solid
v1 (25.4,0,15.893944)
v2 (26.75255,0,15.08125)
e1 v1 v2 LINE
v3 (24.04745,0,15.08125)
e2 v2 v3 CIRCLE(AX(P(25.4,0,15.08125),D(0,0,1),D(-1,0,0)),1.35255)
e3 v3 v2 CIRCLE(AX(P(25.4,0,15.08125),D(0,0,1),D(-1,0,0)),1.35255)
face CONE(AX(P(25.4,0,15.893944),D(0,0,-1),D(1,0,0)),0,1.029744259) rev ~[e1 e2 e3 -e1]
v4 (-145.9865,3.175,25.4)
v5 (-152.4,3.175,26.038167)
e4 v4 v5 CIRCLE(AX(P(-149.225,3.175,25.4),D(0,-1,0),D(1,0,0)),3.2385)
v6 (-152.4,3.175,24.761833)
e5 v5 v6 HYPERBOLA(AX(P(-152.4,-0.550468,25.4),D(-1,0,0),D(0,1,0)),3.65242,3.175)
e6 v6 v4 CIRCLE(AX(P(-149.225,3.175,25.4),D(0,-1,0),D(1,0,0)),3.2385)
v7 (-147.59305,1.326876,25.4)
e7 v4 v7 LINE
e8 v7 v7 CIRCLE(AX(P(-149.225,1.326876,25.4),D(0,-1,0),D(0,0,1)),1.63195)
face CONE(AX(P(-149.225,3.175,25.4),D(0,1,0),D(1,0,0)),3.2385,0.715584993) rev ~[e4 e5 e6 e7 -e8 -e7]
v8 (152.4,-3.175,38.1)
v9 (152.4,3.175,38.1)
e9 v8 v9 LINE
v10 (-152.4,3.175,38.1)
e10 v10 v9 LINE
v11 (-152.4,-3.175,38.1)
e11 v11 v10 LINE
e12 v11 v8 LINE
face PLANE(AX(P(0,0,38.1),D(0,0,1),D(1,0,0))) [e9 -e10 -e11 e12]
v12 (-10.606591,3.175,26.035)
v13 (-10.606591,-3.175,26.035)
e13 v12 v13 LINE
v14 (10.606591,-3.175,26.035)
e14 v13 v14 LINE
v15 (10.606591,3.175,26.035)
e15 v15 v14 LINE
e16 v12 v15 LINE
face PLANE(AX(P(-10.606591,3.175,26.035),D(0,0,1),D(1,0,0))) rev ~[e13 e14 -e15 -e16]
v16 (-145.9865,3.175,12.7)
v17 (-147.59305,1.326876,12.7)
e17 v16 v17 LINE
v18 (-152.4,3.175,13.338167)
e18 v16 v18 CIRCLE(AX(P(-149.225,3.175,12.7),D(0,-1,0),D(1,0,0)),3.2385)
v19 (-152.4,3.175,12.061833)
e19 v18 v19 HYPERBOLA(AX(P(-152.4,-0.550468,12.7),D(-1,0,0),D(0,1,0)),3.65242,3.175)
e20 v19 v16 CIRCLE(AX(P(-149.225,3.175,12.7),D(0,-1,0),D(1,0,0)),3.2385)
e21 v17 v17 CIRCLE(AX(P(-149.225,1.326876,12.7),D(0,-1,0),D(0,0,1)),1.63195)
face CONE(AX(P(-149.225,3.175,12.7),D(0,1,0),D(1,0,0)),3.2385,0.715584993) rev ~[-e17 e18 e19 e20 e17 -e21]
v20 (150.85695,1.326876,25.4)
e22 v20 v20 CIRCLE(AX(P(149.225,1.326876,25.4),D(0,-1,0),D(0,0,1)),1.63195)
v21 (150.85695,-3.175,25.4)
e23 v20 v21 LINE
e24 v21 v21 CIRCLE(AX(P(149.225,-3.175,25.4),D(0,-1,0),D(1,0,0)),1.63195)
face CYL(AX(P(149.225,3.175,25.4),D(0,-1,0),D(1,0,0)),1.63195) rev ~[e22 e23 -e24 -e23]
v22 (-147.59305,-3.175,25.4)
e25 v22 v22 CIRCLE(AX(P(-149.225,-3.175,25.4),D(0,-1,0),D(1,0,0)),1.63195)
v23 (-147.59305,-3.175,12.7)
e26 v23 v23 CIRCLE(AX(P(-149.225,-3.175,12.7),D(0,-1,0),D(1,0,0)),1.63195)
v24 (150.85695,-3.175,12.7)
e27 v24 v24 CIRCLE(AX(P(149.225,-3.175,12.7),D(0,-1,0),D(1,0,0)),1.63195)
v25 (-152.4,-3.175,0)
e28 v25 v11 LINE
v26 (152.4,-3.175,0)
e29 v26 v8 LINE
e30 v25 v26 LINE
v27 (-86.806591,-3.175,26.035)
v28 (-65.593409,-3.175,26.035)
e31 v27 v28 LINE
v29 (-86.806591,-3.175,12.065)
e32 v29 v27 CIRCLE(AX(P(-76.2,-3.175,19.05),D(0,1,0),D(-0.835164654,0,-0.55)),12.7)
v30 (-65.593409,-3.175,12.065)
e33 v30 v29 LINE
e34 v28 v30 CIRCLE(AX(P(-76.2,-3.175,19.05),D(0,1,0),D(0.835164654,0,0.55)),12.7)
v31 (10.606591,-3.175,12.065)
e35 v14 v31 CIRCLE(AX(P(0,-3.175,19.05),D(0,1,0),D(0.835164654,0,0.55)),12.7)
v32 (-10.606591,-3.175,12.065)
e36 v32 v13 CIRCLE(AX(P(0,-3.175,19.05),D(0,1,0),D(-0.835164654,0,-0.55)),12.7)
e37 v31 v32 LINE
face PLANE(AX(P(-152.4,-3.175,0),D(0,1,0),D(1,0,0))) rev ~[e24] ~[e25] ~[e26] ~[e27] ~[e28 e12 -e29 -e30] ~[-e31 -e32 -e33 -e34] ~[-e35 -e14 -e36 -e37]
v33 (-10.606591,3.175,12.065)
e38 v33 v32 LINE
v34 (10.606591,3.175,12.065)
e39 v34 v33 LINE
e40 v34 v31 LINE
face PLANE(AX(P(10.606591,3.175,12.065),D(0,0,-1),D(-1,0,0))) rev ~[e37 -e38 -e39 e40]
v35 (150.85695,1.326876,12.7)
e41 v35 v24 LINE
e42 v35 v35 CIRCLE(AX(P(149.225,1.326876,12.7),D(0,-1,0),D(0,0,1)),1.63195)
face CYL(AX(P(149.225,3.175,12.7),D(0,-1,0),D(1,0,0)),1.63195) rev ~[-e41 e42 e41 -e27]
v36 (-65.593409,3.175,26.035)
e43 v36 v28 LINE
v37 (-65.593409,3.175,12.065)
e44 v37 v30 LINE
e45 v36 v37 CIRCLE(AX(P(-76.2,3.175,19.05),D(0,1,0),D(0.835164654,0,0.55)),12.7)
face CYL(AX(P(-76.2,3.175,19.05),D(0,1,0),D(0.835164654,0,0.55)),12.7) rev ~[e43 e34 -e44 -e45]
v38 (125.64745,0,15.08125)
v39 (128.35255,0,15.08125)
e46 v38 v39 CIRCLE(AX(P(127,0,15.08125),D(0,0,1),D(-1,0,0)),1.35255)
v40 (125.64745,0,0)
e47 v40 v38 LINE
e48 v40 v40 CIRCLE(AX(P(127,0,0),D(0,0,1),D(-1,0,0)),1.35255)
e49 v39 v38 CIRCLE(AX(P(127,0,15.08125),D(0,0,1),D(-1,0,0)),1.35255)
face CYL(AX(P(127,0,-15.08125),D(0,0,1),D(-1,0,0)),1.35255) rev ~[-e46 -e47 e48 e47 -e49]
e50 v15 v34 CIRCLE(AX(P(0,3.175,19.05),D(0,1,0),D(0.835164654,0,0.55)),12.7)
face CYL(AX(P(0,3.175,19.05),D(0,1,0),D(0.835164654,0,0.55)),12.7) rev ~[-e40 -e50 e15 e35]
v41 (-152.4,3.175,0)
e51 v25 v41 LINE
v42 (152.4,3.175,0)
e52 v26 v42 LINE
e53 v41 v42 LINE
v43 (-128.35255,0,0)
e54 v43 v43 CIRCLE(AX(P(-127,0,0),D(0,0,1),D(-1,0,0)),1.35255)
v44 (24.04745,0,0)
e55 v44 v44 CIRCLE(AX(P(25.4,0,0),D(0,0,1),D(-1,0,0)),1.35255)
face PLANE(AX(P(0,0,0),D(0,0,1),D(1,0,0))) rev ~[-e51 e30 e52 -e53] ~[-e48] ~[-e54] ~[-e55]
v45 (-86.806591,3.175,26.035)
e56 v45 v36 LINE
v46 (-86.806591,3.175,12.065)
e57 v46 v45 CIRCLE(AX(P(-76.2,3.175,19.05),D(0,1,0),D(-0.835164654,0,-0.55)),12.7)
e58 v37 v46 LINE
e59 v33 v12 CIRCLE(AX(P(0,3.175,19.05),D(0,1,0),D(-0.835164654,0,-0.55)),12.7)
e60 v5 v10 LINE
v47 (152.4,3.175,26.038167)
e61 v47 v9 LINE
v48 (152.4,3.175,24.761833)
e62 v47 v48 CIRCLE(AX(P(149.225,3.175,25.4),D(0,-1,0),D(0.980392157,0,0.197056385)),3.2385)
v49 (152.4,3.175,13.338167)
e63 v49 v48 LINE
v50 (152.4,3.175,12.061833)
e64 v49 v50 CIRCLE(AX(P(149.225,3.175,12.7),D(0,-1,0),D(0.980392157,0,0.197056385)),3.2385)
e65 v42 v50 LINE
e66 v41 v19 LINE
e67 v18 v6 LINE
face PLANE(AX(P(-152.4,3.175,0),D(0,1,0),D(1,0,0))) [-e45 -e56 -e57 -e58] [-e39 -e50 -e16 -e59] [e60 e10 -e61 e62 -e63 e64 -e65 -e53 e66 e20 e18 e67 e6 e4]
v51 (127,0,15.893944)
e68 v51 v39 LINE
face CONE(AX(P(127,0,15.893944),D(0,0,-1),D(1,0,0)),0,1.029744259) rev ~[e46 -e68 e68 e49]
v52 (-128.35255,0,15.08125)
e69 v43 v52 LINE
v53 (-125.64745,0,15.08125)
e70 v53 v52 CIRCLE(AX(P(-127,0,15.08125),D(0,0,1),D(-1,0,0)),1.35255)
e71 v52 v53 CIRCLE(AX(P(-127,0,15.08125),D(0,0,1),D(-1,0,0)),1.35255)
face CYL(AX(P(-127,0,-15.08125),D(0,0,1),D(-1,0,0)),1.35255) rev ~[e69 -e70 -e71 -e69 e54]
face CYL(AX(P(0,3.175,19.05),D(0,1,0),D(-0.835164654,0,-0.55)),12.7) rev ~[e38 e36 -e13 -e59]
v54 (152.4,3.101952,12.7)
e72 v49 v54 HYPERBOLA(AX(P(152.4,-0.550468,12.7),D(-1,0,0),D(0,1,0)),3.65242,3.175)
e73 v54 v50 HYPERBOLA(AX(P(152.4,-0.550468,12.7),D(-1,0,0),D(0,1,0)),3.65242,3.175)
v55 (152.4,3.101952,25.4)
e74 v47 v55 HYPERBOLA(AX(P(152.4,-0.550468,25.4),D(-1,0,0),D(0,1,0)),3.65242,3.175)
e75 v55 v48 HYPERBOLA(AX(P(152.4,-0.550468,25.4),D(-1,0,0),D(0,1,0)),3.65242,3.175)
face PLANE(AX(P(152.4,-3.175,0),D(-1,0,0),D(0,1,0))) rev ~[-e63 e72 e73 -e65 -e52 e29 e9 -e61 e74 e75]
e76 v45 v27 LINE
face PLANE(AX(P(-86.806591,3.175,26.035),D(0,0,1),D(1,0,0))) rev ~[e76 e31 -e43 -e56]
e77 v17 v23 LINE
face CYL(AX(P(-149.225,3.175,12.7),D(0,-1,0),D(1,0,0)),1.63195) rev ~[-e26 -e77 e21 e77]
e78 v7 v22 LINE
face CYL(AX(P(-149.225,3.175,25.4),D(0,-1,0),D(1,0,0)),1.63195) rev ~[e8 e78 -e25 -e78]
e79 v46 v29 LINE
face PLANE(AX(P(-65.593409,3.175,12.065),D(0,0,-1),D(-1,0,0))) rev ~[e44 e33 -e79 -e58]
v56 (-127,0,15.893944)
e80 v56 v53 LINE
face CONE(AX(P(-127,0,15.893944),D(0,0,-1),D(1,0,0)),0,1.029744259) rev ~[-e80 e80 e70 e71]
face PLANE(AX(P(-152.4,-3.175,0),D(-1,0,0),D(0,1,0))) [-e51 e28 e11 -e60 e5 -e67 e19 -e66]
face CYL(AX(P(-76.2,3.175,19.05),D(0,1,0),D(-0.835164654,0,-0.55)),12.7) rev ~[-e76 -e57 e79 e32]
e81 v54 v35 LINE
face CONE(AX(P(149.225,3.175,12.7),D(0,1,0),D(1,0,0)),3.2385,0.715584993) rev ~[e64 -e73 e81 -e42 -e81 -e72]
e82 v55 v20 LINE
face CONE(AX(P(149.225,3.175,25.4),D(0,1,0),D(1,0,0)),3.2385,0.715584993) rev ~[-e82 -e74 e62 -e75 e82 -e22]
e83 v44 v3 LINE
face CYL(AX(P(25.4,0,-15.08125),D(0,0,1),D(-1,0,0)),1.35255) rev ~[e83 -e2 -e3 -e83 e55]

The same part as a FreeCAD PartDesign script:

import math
import FreeCAD as App
import Part
import Sketcher
from FreeCAD import Vector
Q = App.Units.Quantity


def add_polygon(sketch, points):
    """Adds a closed chain of lines whose ends are joined by coincident constraints."""
    first, n = sketch.GeometryCount, len(points)
    for a, b in zip(points, points[1:] + points[:1]):
        sketch.addGeometry(Part.LineSegment(App.Vector(*a, 0), App.Vector(*b, 0)), False)
    for i in range(n):
        sketch.addConstraint(Sketcher.Constraint("Coincident", first + i, 2, first + (i + 1) % n, 1))

doc = App.newDocument("Part")
body = doc.addObject("PartDesign::Body", "Body")

# Sketch on XY plane
sketch1 = body.newObject("Sketcher::SketchObject", "Sketch")
sketch1.AttachmentSupport = (doc.getObject("XY_Plane"), [""])
sketch1.MapMode = "FlatFace"
add_polygon(sketch1, [(-152, 3), (-152, -3), (152, -3), (152, 3)])  # lines 0-3
sketch1.addConstraint(Sketcher.Constraint("Vertical", 0))
sketch1.addConstraint(Sketcher.Constraint("Horizontal", 1))
sketch1.addConstraint(Sketcher.Constraint("Vertical", 2))
sketch1.addConstraint(Sketcher.Constraint("Horizontal", 3))
sketch1.addConstraint(Sketcher.Constraint("Symmetric", 0, 2, 2, 2, -1, 1))
sketch1.addConstraint(Sketcher.Constraint("DistanceX", 1, 1, 1, 2, Q("12 in")))
sketch1.addConstraint(Sketcher.Constraint("DistanceY", 0, 2, 0, 1, Q("0.25 in")))
pad1 = body.newObject("PartDesign::Pad", "Pad")
pad1.Profile = sketch1
pad1.Length = Q("1.5 in")

# Sketch on XY plane
sketch2 = body.newObject("Sketcher::SketchObject", "Sketch001")
sketch2.AttachmentSupport = (doc.getObject("XY_Plane"), [""])
sketch2.MapMode = "FlatFace"
sketch2.addGeometry(Part.Circle(Vector(-127, 0, 0), Vector(0, 0, 1), 1.4), False)
sketch2.addGeometry(Part.Circle(Vector(127, 0, 0), Vector(0, 0, 1), 1.4), False)
sketch2.addGeometry(Part.Circle(Vector(25.4, 0, 0), Vector(0, 0, 1), 1.4), False)
sketch2.addConstraint(Sketcher.Constraint("Equal", 0, 1))
sketch2.addConstraint(Sketcher.Constraint("Equal", 1, 2))
sketch2.addConstraint(Sketcher.Constraint("Symmetric", 0, 3, 1, 3, -1, 1))
sketch2.addConstraint(Sketcher.Constraint("PointOnObject", 0, 3, -1))
sketch2.addConstraint(Sketcher.Constraint("PointOnObject", 2, 3, -1))
sketch2.addConstraint(Sketcher.Constraint("DistanceX", 0, 3, -1, 1, Q("5 in")))
sketch2.addConstraint(Sketcher.Constraint("DistanceX", -1, 1, 2, 3, Q("1 in")))
sketch2.addConstraint(Sketcher.Constraint("Diameter", 0, Q("0.1065 in")))
doc.recompute()
hole = body.newObject("PartDesign::Hole", "Hole")
hole.Profile = sketch2
hole.ThreadType = "None"
hole.Diameter = Q("0.1065 in")
hole.DepthType = "Dimension"
hole.Depth = Q("0.59375 in")
hole.DrillPoint = "Angled"
hole.DrillPointAngle = 118
hole.Reversed = True

# Sketch on XZ plane
sketch3 = body.newObject("Sketcher::SketchObject", "Sketch002")
sketch3.AttachmentSupport = (doc.getObject("XZ_Plane"), [""])
sketch3.MapMode = "FlatFace"
sketch3.AttachmentOffset = App.Placement(Vector(0, 0, -0.125 * 25.4), App.Rotation())
sketch3.addGeometry(Part.Circle(Vector(149.2, 25.4, 0), Vector(0, 0, 1), 1.6), False)
sketch3.addGeometry(Part.Circle(Vector(149.2, 12.7, 0), Vector(0, 0, 1), 1.6), False)
sketch3.addGeometry(Part.Circle(Vector(-149.2, 25.4, 0), Vector(0, 0, 1), 1.6), False)
sketch3.addGeometry(Part.Circle(Vector(-149.2, 12.7, 0), Vector(0, 0, 1), 1.6), False)
sketch3.addConstraint(Sketcher.Constraint("Equal", 0, 1))
sketch3.addConstraint(Sketcher.Constraint("Equal", 1, 2))
sketch3.addConstraint(Sketcher.Constraint("Equal", 2, 3))
sketch3.addConstraint(Sketcher.Constraint("Symmetric", 0, 3, 2, 3, -2))
sketch3.addConstraint(Sketcher.Constraint("Symmetric", 1, 3, 3, 3, -2))
sketch3.addConstraint(Sketcher.Constraint("Vertical", 0, 3, 1, 3))
sketch3.addConstraint(Sketcher.Constraint("DistanceY", -1, 1, 0, 3, Q("1 in")))
sketch3.addConstraint(Sketcher.Constraint("Diameter", 0, Q("0.1285 in")))
sketch3.addConstraint(Sketcher.Constraint("DistanceY", -1, 1, 1, 3, Q("0.5 in")))
sketch3.addConstraint(Sketcher.Constraint("DistanceX", 2, 3, 0, 3, Q("11.75 in")))
doc.recompute()
hole2 = body.newObject("PartDesign::Hole", "Hole001")
hole2.Profile = sketch3
hole2.ThreadType = "None"
hole2.Diameter = Q("0.1285 in")
hole2.DepthType = "ThroughAll"
hole2.HoleCutType = "Countersink"
hole2.HoleCutDiameter = Q("0.255 in")
hole2.HoleCutCountersinkAngle = 82
hole2.Reversed = True

# Sketch on XZ plane
sketch4 = body.newObject("Sketcher::SketchObject", "Sketch003")
sketch4.AttachmentSupport = (doc.getObject("XZ_Plane"), [""])
sketch4.MapMode = "FlatFace"
sketch4.AttachmentOffset = App.Placement(Vector(0, 0, -0.125 * 25.4), App.Rotation())
sketch4.addGeometry(Part.LineSegment(Vector(-11, 26, 0), Vector(11, 26, 0)), False)
sketch4.addGeometry(Part.ArcOfCircle(Part.Circle(Vector(0, 19, 0), Vector(0, 0, 1), 13), math.radians(-33), math.radians(33)), False)
sketch4.addGeometry(Part.LineSegment(Vector(11, 12, 0), Vector(-11, 12, 0)), False)
sketch4.addGeometry(Part.ArcOfCircle(Part.Circle(Vector(0, 19, 0), Vector(0, 0, 1), 13), math.radians(147), math.radians(213)), False)
sketch4.addGeometry(Part.LineSegment(Vector(-66, 12, 0), Vector(-87, 12, 0)), False)
sketch4.addGeometry(Part.ArcOfCircle(Part.Circle(Vector(-76, 19, 0), Vector(0, 0, 1), 13), math.radians(147), math.radians(213)), False)
sketch4.addGeometry(Part.LineSegment(Vector(-87, 26, 0), Vector(-66, 26, 0)), False)
sketch4.addGeometry(Part.ArcOfCircle(Part.Circle(Vector(-76, 19, 0), Vector(0, 0, 1), 13), math.radians(-33), math.radians(33)), False)
sketch4.addConstraint(Sketcher.Constraint("Coincident", 0, 2, 1, 2))
sketch4.addConstraint(Sketcher.Constraint("Coincident", 1, 1, 2, 1))
sketch4.addConstraint(Sketcher.Constraint("Coincident", 2, 2, 3, 2))
sketch4.addConstraint(Sketcher.Constraint("Coincident", 3, 1, 0, 1))
sketch4.addConstraint(Sketcher.Constraint("Coincident", 4, 2, 5, 2))
sketch4.addConstraint(Sketcher.Constraint("Coincident", 5, 1, 6, 1))
sketch4.addConstraint(Sketcher.Constraint("Coincident", 6, 2, 7, 2))
sketch4.addConstraint(Sketcher.Constraint("Coincident", 7, 1, 4, 1))
sketch4.addConstraint(Sketcher.Constraint("Horizontal", 0))
sketch4.addConstraint(Sketcher.Constraint("Horizontal", 2))
sketch4.addConstraint(Sketcher.Constraint("Horizontal", 4))
sketch4.addConstraint(Sketcher.Constraint("Horizontal", 6))
sketch4.addConstraint(Sketcher.Constraint("Coincident", 3, 3, 1, 3))
sketch4.addConstraint(Sketcher.Constraint("Coincident", 7, 3, 5, 3))
sketch4.addConstraint(Sketcher.Constraint("Equal", 1, 3))
sketch4.addConstraint(Sketcher.Constraint("Equal", 3, 5))
sketch4.addConstraint(Sketcher.Constraint("Equal", 5, 7))
sketch4.addConstraint(Sketcher.Constraint("PointOnObject", 1, 3, -2))
sketch4.addConstraint(Sketcher.Constraint("Horizontal", 3, 3, 5, 3))
sketch4.addConstraint(Sketcher.Constraint("Horizontal", 2, 2, 4, 2))
sketch4.addConstraint(Sketcher.Constraint("Horizontal", 3, 1, 5, 1))
sketch4.addConstraint(Sketcher.Constraint("Vertical", 0, 2, 1, 1))
sketch4.addConstraint(Sketcher.Constraint("Radius", 1, Q("0.5 in")))
sketch4.addConstraint(Sketcher.Constraint("DistanceX", 5, 3, -1, 1, Q("3 in")))
sketch4.addConstraint(Sketcher.Constraint("DistanceY", -1, 1, 1, 3, Q("0.75 in")))
sketch4.addConstraint(Sketcher.Constraint("DistanceY", 1, 1, 0, 2, Q("0.55 in")))
pocket1 = body.newObject("PartDesign::Pocket", "Pocket")
pocket1.Profile = sketch4
pocket1.Length = Q("1 in")
pocket1.Reversed = True

doc.recompute()
